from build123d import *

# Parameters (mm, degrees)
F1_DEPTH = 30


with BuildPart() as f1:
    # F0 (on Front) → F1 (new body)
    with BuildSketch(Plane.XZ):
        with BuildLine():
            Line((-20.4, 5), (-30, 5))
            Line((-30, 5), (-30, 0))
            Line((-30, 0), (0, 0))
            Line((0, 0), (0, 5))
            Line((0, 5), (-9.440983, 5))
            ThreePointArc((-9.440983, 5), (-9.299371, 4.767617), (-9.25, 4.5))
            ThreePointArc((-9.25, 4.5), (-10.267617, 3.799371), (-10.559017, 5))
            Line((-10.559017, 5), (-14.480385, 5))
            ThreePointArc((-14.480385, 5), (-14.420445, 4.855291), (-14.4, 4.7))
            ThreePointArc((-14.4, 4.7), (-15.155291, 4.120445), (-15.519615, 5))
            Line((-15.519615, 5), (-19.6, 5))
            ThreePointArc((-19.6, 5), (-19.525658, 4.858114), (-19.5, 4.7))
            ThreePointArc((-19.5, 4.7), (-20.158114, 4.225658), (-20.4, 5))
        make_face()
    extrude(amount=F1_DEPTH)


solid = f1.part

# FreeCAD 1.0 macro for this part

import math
import FreeCAD as App
import Part
import Sketcher

V = App.Vector

doc = App.newDocument("Part")
params = doc.addObject("Spreadsheet::Sheet", "Params")
for row, (alias, value) in enumerate([
    ("sketch1_radius", "0.6 mm"),
    ("sketch1_radius2", "0.5 mm"),
    ("sketch1_width", "30 mm"),
    ("sketch1_height", "5 mm"),
    ("sketch1_radius3", "0.750001 mm"),
    ("pad1_length", "30 mm"),
], start=1):
    params.set(f"A{row}", alias)
    params.set(f"B{row}", "=" + value)
    params.setAlias(f"B{row}", alias)

body = doc.addObject("PartDesign::Body", "Body")

# Sketch on XZ plane
sketch1 = body.newObject("Sketcher::SketchObject", "Sketch")
sketch1.AttachmentSupport = (doc.getObject("XZ_Plane"), [""])
sketch1.MapMode = "FlatFace"
sketch1.addGeometry([
    Part.LineSegment(V(-20.4, 5, 0), V(-30, 5, 0)),  # 0
    Part.LineSegment(V(-30, 5, 0), V(-30, 0, 0)),  # 1
    Part.LineSegment(V(-30, 0, 0), V(0, 0, 0)),  # 2
    Part.LineSegment(V(0, 0, 0), V(0, 5, 0)),  # 3
    Part.LineSegment(V(0, 5, 0), V(-9.440983, 5, 0)),  # 4
    Part.ArcOfCircle(Part.Circle(V(-10.000001, 4.499999, 0), V(0, 0, 1), 0.750001), math.radians(0.000041), math.radians(41.810273)),  # 5
    Part.ArcOfCircle(Part.Circle(V(-10, 4.5, 0), V(0, 0, 1), 0.75), math.radians(138.189691), math.radians(359.999995)),  # 6
    Part.LineSegment(V(-10.559017, 5, 0), V(-14.480385, 5, 0)),  # 7
    Part.ArcOfCircle(Part.Circle(V(-15.000014, 4.699996, 0), V(0, 0, 1), 0.600014), math.radians(0.000389), math.radians(29.999698)),  # 8
    Part.ArcOfCircle(Part.Circle(V(-15, 4.7, 0), V(0, 0, 1), 0.6), math.radians(150.000027), math.radians(359.999967)),  # 9
    Part.LineSegment(V(-15.519615, 5, 0), V(-19.6, 5, 0)),  # 10
    Part.ArcOfCircle(Part.Circle(V(-19.999993, 4.700002, 0), V(0, 0, 1), 0.499993), math.radians(-0.000261), math.radians(36.870159)),  # 11
    Part.ArcOfCircle(Part.Circle(V(-20, 4.7, 0), V(0, 0, 1), 0.5), math.radians(143.130072), math.radians(360.000031)),  # 12
], False)
sketch1.addConstraint([
    Sketcher.Constraint("Coincident", 0, 2, 1, 1),
    Sketcher.Constraint("Coincident", 1, 2, 2, 1),
    Sketcher.Constraint("Coincident", 2, 2, 3, 1),
    Sketcher.Constraint("Coincident", 3, 2, 4, 1),
    Sketcher.Constraint("Coincident", 4, 2, 5, 2),
    Sketcher.Constraint("Tangent", 5, 1, 6, 2),
    Sketcher.Constraint("Coincident", 6, 1, 7, 1),
    Sketcher.Constraint("Coincident", 7, 2, 8, 2),
    Sketcher.Constraint("Coincident", 8, 1, 9, 2),
    Sketcher.Constraint("Coincident", 9, 1, 10, 1),
    Sketcher.Constraint("Coincident", 10, 2, 11, 2),
    Sketcher.Constraint("Coincident", 11, 1, 12, 2),
    Sketcher.Constraint("Coincident", 12, 1, 0, 1),
    Sketcher.Constraint("Horizontal", 0),
    Sketcher.Constraint("Vertical", 1),
    Sketcher.Constraint("Horizontal", 2),
    Sketcher.Constraint("Vertical", 3),
    Sketcher.Constraint("Horizontal", 4),
    Sketcher.Constraint("Horizontal", 7),
    Sketcher.Constraint("Horizontal", 10),
    Sketcher.Constraint("Coincident", 2, 2, -1, 1),
    Sketcher.Constraint("Coincident", 12, 3, 11, 3),
    Sketcher.Constraint("Equal", 5, 6),
    Sketcher.Constraint("Horizontal", 9, 3, 11, 3),
    Sketcher.Constraint("Horizontal", 0, 2, 3, 2),
    Sketcher.Constraint("Horizontal", 6, 3, 5, 1),
    Sketcher.Constraint("Horizontal", 4, 2, 6, 1),
    Sketcher.Constraint("Horizontal", 12, 3, 8, 1),
    Sketcher.Constraint("Horizontal", 7, 2, 9, 1),
    Sketcher.Constraint("Horizontal", 8, 1, 11, 1),
    Sketcher.Constraint("Radius", 9, 0.6),
    Sketcher.Constraint("Radius", 12, 0.5),
    Sketcher.Constraint("DistanceX", 2, 1, 2, 2, 30.0),
    Sketcher.Constraint("DistanceY", 1, 2, 1, 1, 5.0),
    Sketcher.Constraint("Radius", 5, 0.750001),
    Sketcher.Constraint("DistanceX", 0, 2, 0, 1, 9.6),
    Sketcher.Constraint("DistanceX", 5, 3, -1, 1, 10.000001),
    Sketcher.Constraint("DistanceX", 9, 3, -1, 1, 15.0),
    Sketcher.Constraint("DistanceX", 12, 3, -1, 1, 20.0),
    Sketcher.Constraint("DistanceY", -1, 1, 5, 3, 4.499999),
    Sketcher.Constraint("Radius", 8, 0.600014),
    Sketcher.Constraint("DistanceX", 7, 2, 7, 1, 3.921368),
])
sketch1.setExpression("Constraints[30]", "Params.sketch1_radius")
sketch1.setExpression("Constraints[31]", "Params.sketch1_radius2")
sketch1.setExpression("Constraints[32]", "Params.sketch1_width")
sketch1.setExpression("Constraints[33]", "Params.sketch1_height")
sketch1.setExpression("Constraints[34]", "Params.sketch1_radius3")
pad1 = body.newObject("PartDesign::Pad", "Pad")
pad1.Profile = sketch1
pad1.setExpression("Length", "Params.pad1_length")

doc.recompute()
